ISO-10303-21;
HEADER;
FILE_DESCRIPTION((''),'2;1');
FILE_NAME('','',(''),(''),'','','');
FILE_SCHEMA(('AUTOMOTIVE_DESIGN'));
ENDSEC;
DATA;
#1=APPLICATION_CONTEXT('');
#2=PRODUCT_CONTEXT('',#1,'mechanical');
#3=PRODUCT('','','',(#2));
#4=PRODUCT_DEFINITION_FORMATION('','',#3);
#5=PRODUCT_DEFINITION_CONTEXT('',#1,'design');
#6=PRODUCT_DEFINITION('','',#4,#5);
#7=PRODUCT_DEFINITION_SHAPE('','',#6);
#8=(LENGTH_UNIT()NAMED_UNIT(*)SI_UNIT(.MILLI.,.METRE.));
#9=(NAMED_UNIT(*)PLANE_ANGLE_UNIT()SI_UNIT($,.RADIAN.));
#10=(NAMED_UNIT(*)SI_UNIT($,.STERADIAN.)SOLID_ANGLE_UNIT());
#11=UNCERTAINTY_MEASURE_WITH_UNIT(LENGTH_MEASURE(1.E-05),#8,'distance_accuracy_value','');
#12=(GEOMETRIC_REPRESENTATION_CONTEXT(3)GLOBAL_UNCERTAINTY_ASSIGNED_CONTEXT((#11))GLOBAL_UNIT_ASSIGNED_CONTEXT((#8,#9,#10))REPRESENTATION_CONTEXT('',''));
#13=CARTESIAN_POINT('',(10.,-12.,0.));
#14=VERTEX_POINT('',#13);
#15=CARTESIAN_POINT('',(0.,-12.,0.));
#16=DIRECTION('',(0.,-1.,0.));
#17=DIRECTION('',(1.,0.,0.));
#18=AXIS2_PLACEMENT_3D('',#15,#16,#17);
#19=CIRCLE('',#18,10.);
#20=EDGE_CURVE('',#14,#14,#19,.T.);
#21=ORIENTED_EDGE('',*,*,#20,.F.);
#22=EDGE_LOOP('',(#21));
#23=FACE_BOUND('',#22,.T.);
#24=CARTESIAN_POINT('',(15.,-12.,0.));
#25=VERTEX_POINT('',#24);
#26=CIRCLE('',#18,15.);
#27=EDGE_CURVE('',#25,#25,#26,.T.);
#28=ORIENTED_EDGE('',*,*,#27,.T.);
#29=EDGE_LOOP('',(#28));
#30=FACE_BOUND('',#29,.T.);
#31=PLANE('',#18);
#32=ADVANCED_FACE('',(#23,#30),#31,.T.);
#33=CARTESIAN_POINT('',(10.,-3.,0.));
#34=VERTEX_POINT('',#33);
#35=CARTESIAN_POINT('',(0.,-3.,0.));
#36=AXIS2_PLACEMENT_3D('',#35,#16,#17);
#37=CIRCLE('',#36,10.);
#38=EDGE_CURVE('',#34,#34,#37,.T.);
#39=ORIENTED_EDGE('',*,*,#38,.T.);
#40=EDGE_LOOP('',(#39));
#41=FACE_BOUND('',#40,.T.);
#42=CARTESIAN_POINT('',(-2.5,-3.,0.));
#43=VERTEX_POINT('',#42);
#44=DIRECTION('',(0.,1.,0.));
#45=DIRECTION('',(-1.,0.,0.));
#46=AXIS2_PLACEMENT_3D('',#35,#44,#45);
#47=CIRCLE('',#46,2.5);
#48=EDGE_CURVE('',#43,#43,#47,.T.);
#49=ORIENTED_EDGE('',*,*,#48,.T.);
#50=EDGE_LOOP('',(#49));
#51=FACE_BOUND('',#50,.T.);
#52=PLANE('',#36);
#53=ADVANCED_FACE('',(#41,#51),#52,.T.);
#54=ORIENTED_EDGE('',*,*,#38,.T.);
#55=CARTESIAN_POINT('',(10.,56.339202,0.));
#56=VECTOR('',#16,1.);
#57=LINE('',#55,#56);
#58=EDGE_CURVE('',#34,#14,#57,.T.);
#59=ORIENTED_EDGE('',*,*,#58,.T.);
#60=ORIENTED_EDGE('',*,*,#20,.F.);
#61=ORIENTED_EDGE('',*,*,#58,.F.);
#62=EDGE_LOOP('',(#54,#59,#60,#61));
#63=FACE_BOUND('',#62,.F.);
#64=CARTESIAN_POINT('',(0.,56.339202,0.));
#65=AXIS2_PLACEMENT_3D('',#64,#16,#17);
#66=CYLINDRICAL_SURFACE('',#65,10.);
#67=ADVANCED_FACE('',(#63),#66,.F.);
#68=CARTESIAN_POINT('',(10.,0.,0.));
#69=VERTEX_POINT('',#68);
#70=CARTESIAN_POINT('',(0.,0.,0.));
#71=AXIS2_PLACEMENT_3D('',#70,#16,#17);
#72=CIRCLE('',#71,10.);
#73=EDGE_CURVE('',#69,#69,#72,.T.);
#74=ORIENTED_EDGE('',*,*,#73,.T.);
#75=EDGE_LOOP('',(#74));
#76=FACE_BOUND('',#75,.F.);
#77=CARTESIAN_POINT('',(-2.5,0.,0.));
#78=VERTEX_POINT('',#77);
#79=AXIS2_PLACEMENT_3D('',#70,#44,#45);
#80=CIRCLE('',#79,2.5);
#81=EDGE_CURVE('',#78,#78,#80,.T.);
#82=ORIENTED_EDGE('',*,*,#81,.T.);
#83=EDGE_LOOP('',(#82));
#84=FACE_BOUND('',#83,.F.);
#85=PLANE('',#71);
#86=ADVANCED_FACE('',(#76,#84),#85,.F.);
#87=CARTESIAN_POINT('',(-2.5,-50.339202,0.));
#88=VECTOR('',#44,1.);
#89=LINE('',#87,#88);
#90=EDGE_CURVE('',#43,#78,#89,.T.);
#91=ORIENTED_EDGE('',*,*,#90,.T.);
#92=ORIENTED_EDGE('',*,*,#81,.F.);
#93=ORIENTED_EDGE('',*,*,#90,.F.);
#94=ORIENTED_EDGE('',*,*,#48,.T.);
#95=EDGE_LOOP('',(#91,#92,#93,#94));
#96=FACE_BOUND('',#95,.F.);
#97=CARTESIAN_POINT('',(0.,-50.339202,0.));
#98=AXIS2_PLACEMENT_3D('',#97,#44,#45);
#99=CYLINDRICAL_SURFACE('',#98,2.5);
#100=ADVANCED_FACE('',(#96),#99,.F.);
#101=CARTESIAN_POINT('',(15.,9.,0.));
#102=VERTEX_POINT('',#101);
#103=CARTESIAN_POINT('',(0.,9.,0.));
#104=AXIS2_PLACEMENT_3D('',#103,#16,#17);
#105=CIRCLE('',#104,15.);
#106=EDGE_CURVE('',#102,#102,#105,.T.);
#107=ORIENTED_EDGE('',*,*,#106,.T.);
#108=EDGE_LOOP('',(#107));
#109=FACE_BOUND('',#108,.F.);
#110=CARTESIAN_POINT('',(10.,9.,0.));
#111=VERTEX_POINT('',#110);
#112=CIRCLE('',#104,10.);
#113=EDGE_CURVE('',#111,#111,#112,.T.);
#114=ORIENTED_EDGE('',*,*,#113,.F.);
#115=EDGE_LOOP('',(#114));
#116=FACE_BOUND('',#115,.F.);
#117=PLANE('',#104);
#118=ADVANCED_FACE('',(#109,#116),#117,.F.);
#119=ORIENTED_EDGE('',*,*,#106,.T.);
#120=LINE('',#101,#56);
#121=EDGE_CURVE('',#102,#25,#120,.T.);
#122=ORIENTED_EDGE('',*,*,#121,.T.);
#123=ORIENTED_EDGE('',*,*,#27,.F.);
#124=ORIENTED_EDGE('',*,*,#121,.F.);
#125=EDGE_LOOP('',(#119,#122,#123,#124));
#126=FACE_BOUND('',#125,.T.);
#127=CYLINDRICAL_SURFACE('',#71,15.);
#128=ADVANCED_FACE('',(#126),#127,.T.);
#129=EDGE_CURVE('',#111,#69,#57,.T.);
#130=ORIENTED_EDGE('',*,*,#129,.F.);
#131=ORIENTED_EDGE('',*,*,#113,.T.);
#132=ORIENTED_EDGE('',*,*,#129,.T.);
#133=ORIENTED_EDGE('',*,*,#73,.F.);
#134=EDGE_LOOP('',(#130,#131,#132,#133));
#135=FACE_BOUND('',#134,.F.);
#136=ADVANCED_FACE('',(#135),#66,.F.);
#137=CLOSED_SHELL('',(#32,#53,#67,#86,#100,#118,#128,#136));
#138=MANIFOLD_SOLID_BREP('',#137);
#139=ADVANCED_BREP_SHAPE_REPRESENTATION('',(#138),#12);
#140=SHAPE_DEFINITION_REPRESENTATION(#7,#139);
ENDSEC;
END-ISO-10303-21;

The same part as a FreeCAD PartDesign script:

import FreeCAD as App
import Part
import Sketcher
from FreeCAD import Vector
Q = App.Units.Quantity

doc = App.newDocument("Part")
body = doc.addObject("PartDesign::Body", "Body")

sketch1 = body.newObject("Sketcher::SketchObject", "Sketch")
sketch1.AttachmentSupport = (doc.getObject("XZ_Plane"), [""])
sketch1.MapMode = "FlatFace"
sketch1.addGeometry(Part.Circle(Vector(0, 0, 0), Vector(0, 0, 1), 15), False)
sketch1.addConstraint(Sketcher.Constraint("Coincident", 0, 3, -1, 1))
sketch1.addConstraint(Sketcher.Constraint("Diameter", 0, Q("30 mm")))
pad1 = body.newObject("PartDesign::Pad", "Pad")
pad1.Profile = sketch1
pad1.Type = "TwoLengths"
pad1.Length = 12
pad1.Length2 = 9

sketch2 = body.newObject("Sketcher::SketchObject", "Sketch001")
sketch2.AttachmentSupport = (doc.getObject("XZ_Plane"), [""])
sketch2.MapMode = "FlatFace"
sketch2.AttachmentOffset = App.Placement(Vector(0, 0, -9), App.Rotation())
sketch2.addGeometry(Part.Circle(Vector(0, 0, 0), Vector(0, 0, 1), 10), False)
sketch2.addConstraint(Sketcher.Constraint("Coincident", 0, 3, -1, 1))
sketch2.addConstraint(Sketcher.Constraint("Diameter", 0, Q("20 mm")))
doc.recompute()
hole = body.newObject("PartDesign::Hole", "Hole")
hole.Profile = sketch2
hole.ThreadType = "None"
hole.Diameter = 20
hole.DepthType = "ThroughAll"
hole.Reversed = True

sketch3 = body.newObject("Sketcher::SketchObject", "Sketch002")
sketch3.AttachmentSupport = (doc.getObject("XZ_Plane"), [""])
sketch3.MapMode = "FlatFace"
sketch3.addGeometry(Part.Circle(Vector(0, 0, 0), Vector(0, 0, 1), 14), False)
sketch3.addConstraint(Sketcher.Constraint("Coincident", 0, 3, -1, 1))
sketch3.addConstraint(Sketcher.Constraint("Diameter", 0, Q("27.149822 mm")))
pad2 = body.newObject("PartDesign::Pad", "Pad001")
pad2.Profile = sketch3
pad2.Length = 3

sketch4 = body.newObject("Sketcher::SketchObject", "Sketch003")
sketch4.AttachmentSupport = (doc.getObject("XZ_Plane"), [""])
sketch4.MapMode = "FlatFace"
sketch4.AttachmentOffset = App.Placement(Vector(0, 0, 3), App.Rotation())
sketch4.addGeometry(Part.Circle(Vector(0, 0, 0), Vector(0, 0, 1), 2.5), False)
sketch4.addConstraint(Sketcher.Constraint("Coincident", 0, 3, -1, 1))
sketch4.addConstraint(Sketcher.Constraint("Diameter", 0, Q("5 mm")))
doc.recompute()
hole2 = body.newObject("PartDesign::Hole", "Hole001")
hole2.Profile = sketch4
hole2.ThreadType = "None"
hole2.Diameter = 5
hole2.DepthType = "ThroughAll"

doc.recompute()
